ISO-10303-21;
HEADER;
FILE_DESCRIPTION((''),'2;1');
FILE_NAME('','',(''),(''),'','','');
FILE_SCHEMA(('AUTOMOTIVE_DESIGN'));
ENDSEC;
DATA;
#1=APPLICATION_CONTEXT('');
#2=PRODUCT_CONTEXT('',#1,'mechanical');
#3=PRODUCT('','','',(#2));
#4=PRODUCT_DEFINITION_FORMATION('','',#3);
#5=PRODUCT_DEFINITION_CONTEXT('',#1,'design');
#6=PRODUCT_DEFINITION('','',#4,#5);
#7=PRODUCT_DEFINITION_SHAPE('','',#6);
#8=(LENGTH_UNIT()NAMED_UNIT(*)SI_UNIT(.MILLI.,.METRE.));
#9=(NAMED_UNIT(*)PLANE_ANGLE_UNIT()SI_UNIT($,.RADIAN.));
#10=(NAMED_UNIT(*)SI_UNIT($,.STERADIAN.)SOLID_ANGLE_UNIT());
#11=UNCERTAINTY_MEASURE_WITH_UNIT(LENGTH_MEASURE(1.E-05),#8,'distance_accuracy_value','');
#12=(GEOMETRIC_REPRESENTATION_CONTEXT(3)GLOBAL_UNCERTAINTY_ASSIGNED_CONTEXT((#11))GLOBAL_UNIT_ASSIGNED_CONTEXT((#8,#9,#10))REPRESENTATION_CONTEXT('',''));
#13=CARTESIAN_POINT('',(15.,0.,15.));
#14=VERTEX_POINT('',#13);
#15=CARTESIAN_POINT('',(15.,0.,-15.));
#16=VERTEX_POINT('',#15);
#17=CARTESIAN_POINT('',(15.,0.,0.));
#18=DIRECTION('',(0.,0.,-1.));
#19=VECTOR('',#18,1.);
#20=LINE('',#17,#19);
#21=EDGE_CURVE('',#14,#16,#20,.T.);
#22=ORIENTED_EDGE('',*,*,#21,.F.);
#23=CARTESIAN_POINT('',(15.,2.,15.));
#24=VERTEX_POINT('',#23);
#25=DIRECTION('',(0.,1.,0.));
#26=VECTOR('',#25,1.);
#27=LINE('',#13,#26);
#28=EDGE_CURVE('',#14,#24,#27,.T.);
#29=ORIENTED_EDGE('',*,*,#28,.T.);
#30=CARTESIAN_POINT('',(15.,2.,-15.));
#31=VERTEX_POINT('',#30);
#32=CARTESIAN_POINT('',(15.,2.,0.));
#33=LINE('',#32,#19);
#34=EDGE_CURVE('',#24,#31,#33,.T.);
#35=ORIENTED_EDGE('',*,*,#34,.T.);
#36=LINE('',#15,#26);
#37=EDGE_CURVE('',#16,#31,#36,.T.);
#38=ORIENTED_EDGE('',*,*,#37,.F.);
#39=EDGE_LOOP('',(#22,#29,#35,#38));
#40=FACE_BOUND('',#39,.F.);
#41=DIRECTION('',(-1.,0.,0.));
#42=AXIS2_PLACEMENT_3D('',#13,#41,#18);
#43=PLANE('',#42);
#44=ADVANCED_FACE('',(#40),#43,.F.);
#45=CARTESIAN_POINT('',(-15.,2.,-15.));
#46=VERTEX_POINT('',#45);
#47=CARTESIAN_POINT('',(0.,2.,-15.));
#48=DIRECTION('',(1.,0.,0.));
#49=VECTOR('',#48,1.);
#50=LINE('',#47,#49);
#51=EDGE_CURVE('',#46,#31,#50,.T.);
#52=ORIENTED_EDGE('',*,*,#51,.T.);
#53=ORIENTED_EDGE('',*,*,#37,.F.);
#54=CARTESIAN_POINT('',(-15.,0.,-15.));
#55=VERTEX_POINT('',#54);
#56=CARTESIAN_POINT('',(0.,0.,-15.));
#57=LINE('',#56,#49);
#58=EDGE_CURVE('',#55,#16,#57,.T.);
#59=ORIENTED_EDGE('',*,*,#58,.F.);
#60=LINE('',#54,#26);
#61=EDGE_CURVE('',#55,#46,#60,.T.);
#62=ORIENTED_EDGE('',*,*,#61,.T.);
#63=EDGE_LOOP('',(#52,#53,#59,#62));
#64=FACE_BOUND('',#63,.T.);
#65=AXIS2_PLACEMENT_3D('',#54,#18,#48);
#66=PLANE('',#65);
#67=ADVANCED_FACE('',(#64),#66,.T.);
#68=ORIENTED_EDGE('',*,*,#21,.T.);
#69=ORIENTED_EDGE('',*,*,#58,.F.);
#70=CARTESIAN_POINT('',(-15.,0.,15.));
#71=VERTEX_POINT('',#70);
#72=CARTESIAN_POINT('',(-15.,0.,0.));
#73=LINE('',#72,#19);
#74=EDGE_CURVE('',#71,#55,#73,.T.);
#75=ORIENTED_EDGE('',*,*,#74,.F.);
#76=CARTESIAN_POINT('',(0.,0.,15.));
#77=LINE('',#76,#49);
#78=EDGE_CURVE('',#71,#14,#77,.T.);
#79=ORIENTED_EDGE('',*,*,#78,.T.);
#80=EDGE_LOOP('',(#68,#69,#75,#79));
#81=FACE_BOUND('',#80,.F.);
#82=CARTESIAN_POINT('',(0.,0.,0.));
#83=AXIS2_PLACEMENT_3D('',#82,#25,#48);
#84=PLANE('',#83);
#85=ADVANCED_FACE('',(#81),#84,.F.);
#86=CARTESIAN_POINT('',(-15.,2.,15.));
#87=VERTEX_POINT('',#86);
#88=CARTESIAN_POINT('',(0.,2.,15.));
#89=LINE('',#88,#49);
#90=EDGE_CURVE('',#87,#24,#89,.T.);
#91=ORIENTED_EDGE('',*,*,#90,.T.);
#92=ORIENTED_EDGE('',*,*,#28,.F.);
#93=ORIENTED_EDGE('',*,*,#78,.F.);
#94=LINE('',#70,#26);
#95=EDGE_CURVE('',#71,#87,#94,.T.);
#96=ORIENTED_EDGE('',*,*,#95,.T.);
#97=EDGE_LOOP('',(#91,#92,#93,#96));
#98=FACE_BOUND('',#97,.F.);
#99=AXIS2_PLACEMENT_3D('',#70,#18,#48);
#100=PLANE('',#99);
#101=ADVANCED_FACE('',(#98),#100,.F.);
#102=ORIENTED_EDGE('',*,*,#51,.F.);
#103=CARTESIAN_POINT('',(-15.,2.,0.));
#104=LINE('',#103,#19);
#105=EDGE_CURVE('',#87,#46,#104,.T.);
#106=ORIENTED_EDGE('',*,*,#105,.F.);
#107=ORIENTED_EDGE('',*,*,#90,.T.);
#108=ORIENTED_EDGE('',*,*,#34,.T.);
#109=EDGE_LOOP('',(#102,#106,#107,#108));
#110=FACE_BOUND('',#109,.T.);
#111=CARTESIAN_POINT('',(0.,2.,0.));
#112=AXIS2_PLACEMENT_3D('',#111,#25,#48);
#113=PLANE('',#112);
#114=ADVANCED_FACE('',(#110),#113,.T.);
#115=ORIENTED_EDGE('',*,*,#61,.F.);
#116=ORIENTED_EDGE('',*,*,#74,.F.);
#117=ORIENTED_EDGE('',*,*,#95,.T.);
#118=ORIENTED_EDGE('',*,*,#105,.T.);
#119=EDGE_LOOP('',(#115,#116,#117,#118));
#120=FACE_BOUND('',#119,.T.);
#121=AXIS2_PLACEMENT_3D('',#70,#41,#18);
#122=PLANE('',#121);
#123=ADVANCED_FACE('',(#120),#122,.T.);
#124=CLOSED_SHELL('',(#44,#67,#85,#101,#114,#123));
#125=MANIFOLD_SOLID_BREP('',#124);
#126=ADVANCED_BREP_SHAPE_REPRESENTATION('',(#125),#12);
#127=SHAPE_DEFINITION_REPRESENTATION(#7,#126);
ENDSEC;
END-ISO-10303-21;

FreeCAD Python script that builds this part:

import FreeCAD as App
import Part
import Sketcher

V = App.Vector
Q = App.Units.Quantity

doc = App.newDocument("Part")
params = doc.addObject("Spreadsheet::Sheet", "Params")
for row, (alias, value) in enumerate([
    ("sketch1_width", "30 mm"),
    ("pad1_length", "2 mm"),
], start=1):
    params.set(f"A{row}", alias)
    params.set(f"B{row}", "=" + value)
    params.setAlias(f"B{row}", alias)

body = doc.addObject("PartDesign::Body", "Body")

# Sketch on XZ plane
sketch1 = doc.addObject("Sketcher::SketchObject", "Sketch")
body.addObject(sketch1)
sketch1.AttachmentSupport = (doc.XZ_Plane, [""])
sketch1.MapMode = "FlatFace"
sketch1.addGeometry([
    Part.LineSegment(V(-15, -15, 0), V(-15, 15, 0)),
    Part.LineSegment(V(-15, 15, 0), V(15, 15, 0)),
    Part.LineSegment(V(15, 15, 0), V(15, -15, 0)),
    Part.LineSegment(V(15, -15, 0), V(-15, -15, 0)),
], False)
sketch1.addConstraint([
    Sketcher.Constraint("Coincident", 0, 2, 1, 1),
    Sketcher.Constraint("Coincident", 1, 2, 2, 1),
    Sketcher.Constraint("Coincident", 2, 2, 3, 1),
    Sketcher.Constraint("Coincident", 3, 2, 0, 1),
    Sketcher.Constraint("Vertical", 0),
    Sketcher.Constraint("Horizontal", 1),
    Sketcher.Constraint("Vertical", 2),
    Sketcher.Constraint("Horizontal", 3),
    Sketcher.Constraint("Symmetric", 0, 2, 2, 2, -1, 1),
    Sketcher.Constraint("Equal", 3, 0),
    Sketcher.Constraint("DistanceX", 1, 1, 1, 2, Q("30 mm")),
])
sketch1.setExpression("Constraints[10]", "Params.sketch1_width")
pad1 = doc.addObject("PartDesign::Pad", "Pad")
body.addObject(pad1)
pad1.Profile = sketch1
pad1.setExpression("Length", "Params.pad1_length")
pad1.Reversed = True

doc.recompute()
